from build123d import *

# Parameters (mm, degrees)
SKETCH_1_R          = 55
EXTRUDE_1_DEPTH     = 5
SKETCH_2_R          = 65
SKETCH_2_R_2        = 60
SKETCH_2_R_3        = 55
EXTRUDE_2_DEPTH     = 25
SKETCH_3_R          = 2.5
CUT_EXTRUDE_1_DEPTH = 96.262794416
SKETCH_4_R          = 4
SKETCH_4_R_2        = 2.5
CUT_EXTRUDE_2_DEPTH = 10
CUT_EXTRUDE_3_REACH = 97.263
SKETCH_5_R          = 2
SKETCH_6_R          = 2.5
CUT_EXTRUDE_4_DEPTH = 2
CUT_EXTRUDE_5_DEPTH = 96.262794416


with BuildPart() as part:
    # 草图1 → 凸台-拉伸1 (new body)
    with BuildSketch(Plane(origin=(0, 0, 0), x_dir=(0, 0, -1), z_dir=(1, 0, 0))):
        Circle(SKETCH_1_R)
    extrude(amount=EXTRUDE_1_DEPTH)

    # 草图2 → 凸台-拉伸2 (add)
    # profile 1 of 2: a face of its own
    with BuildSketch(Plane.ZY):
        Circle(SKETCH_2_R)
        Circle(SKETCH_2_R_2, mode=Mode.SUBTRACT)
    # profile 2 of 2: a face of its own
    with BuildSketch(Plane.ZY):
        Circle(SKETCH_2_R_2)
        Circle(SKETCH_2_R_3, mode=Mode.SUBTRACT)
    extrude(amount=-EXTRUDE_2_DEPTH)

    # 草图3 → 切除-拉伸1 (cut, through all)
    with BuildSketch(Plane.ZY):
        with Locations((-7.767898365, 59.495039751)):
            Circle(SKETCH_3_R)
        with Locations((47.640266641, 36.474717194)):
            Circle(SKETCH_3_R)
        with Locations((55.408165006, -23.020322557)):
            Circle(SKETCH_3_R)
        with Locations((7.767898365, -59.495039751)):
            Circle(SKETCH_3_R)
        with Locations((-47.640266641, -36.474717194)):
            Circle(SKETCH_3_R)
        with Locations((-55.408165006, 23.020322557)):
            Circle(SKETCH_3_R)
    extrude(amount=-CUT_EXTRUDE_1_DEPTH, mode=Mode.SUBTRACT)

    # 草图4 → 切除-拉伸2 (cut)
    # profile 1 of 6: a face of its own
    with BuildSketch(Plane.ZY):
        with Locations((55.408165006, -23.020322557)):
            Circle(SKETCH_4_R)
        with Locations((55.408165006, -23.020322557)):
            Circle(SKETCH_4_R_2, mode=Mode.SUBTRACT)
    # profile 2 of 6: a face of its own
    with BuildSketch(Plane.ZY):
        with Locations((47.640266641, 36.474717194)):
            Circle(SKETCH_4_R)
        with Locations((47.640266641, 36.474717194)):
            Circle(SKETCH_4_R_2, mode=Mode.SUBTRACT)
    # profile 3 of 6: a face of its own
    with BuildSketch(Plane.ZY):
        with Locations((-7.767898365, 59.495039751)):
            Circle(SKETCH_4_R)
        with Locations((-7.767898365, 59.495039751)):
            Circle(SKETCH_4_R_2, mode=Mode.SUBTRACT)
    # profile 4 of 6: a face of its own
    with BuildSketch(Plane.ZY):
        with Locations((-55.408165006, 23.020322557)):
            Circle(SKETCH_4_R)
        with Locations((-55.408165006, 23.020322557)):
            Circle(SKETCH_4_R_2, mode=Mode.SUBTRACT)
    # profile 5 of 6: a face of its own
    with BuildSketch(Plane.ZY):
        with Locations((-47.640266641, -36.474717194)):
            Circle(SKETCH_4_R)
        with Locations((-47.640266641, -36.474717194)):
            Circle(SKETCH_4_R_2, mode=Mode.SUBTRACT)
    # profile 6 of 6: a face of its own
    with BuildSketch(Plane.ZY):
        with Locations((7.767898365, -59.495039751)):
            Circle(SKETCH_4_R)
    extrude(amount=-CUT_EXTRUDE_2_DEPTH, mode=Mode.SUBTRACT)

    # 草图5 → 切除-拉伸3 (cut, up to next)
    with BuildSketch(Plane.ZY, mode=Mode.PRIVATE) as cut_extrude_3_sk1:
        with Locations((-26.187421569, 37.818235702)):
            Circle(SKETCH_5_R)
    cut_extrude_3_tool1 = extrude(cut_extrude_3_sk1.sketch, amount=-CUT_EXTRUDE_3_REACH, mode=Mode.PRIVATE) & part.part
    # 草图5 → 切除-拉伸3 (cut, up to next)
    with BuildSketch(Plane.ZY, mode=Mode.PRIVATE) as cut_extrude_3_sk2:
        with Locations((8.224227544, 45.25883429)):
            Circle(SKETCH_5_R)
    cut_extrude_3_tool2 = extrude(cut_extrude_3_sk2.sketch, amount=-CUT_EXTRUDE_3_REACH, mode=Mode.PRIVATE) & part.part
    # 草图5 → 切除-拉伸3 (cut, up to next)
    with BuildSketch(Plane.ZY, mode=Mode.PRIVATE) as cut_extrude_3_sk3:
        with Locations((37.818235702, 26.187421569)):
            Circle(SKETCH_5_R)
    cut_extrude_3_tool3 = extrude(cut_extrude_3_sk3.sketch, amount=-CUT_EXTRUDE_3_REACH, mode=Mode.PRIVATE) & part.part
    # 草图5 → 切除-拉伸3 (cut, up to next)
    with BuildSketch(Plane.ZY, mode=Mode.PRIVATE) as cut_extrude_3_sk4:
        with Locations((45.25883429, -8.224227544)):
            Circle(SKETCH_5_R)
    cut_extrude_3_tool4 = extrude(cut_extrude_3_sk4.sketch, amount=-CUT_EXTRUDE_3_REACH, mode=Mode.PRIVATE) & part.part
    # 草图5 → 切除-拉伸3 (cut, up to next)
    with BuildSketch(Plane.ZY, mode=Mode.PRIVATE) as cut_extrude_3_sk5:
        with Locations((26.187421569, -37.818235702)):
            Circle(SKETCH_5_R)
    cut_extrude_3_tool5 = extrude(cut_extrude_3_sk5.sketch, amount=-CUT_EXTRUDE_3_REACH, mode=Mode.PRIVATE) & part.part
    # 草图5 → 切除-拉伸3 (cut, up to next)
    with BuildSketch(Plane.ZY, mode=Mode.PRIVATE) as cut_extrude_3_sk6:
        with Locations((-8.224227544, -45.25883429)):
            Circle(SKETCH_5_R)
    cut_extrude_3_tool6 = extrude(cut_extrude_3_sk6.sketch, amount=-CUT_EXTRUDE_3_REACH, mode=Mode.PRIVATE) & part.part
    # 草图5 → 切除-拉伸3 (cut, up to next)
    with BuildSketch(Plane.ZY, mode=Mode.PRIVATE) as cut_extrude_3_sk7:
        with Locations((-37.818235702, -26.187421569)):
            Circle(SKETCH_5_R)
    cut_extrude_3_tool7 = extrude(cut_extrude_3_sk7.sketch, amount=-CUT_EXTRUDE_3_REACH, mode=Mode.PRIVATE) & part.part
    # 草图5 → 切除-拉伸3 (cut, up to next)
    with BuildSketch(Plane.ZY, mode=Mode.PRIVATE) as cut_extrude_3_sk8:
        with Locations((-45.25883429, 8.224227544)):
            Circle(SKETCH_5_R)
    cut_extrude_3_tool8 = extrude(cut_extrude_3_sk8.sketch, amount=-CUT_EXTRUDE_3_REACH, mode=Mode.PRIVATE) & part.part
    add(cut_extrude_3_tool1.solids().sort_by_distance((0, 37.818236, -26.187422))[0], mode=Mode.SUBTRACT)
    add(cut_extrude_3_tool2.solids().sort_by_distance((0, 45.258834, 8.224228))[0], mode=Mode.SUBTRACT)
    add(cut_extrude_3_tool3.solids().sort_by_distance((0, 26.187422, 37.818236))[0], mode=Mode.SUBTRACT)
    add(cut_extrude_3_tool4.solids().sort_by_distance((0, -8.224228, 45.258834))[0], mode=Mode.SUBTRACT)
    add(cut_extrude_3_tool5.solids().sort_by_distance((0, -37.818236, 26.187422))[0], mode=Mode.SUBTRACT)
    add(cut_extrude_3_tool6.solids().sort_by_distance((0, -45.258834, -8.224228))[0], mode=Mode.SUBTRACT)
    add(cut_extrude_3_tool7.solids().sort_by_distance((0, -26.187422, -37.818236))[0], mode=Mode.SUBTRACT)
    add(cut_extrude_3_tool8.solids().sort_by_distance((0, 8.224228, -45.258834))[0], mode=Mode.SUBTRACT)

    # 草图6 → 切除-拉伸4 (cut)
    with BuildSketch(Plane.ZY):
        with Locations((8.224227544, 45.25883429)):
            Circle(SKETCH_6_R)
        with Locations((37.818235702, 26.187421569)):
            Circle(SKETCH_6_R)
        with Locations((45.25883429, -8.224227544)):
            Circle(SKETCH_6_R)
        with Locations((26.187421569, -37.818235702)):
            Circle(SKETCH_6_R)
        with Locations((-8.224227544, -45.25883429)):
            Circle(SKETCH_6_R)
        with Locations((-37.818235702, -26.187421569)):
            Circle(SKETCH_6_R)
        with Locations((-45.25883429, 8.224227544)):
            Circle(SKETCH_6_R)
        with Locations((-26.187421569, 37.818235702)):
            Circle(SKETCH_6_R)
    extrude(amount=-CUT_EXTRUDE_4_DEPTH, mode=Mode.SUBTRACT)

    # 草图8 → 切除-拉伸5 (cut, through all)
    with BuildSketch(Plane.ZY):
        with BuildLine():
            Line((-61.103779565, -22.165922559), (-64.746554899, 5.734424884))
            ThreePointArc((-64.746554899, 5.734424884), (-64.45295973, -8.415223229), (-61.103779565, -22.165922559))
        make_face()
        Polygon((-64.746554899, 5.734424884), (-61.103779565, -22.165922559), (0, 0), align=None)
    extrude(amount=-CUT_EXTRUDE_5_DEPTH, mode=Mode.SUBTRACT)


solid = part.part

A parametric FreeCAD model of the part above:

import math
import FreeCAD as App
import Part
import Sketcher

V = App.Vector

doc = App.newDocument("Part")
body = doc.addObject("PartDesign::Body", "Body")

sketch1 = body.newObject("Sketcher::SketchObject", "Sketch")
sketch1.AttachmentSupport = (doc.getObject("YZ_Plane"), [""])
sketch1.MapMode = "FlatFace"
sketch1.addGeometry(Part.Circle(V(0, 0, 0), V(0, 0, 1), 55), False)
sketch1.addConstraint(Sketcher.Constraint("Coincident", 0, 3, -1, 1))
sketch1.addConstraint(Sketcher.Constraint("Diameter", 0, 110.0))
pad1 = body.newObject("PartDesign::Pad", "Pad")
pad1.Profile = sketch1
pad1.Length = 5

sketch2 = body.newObject("Sketcher::SketchObject", "Sketch001")
sketch2.AttachmentSupport = (doc.getObject("YZ_Plane"), [""])
sketch2.MapMode = "FlatFace"
sketch2.addGeometry(Part.Circle(V(0, 0, 0), V(0, 0, 1), 65), False)
sketch2.addGeometry(Part.Circle(V(0, 0, 0), V(0, 0, 1), 55), False)
sketch2.addConstraint(Sketcher.Constraint("Coincident", 0, 3, -1, 1))
sketch2.addConstraint(Sketcher.Constraint("Coincident", 1, 3, -1, 1))
sketch2.addConstraint(Sketcher.Constraint("Diameter", 0, 130.0))
sketch2.addConstraint(Sketcher.Constraint("Diameter", 1, 110.0))
pad2 = body.newObject("PartDesign::Pad", "Pad001")
pad2.Profile = sketch2
pad2.Length = 25

sketch3 = body.newObject("Sketcher::SketchObject", "Sketch002")
sketch3.AttachmentSupport = (doc.getObject("YZ_Plane"), [""])
sketch3.MapMode = "FlatFace"
sketch3.addGeometry(Part.Circle(V(59.5, -7.8, 0), V(0, 0, 1), 2.5), False)
sketch3.addGeometry(Part.Circle(V(36.5, 47.6, 0), V(0, 0, 1), 2.5), False)
sketch3.addGeometry(Part.Circle(V(-23, 55.4, 0), V(0, 0, 1), 2.5), False)
sketch3.addGeometry(Part.Circle(V(-59.5, 7.8, 0), V(0, 0, 1), 2.5), False)
sketch3.addGeometry(Part.Circle(V(-36.5, -47.6, 0), V(0, 0, 1), 2.5), False)
sketch3.addGeometry(Part.Circle(V(23, -55.4, 0), V(0, 0, 1), 2.5), False)
sketch3.addConstraint(Sketcher.Constraint("Equal", 0, 1))
sketch3.addConstraint(Sketcher.Constraint("Equal", 1, 2))
sketch3.addConstraint(Sketcher.Constraint("Equal", 2, 3))
sketch3.addConstraint(Sketcher.Constraint("Equal", 3, 4))
sketch3.addConstraint(Sketcher.Constraint("Equal", 4, 5))
sketch3.addConstraint(Sketcher.Constraint("Symmetric", 0, 3, 3, 3, -1, 1))
sketch3.addConstraint(Sketcher.Constraint("Symmetric", 1, 3, 4, 3, -1, 1))
sketch3.addConstraint(Sketcher.Constraint("Symmetric", 2, 3, 5, 3, -1, 1))
sketch3.addConstraint(Sketcher.Constraint("Diameter", 0, 5.0))
sketch3.addConstraint(Sketcher.Constraint("DistanceY", 0, 3, -1, 1, 7.767898))
sketch3.addConstraint(Sketcher.Constraint("DistanceY", 1, 3, 2, 3, 7.767898))
sketch3.addConstraint(Sketcher.Constraint("DistanceX", -1, 1, 0, 3, 59.49504))
sketch3.addConstraint(Sketcher.Constraint("DistanceX", 2, 3, 1, 3, 59.49504))
sketch3.addConstraint(Sketcher.Constraint("DistanceY", 3, 3, 1, 3, 39.872368))
sketch3.addConstraint(Sketcher.Constraint("DistanceX", -1, 1, 1, 3, 36.474717))
pocket1 = body.newObject("PartDesign::Pocket", "Pocket")
pocket1.Profile = sketch3
pocket1.Type = "ThroughAll"
pocket1.Reversed = True

sketch4 = body.newObject("Sketcher::SketchObject", "Sketch003")
sketch4.AttachmentSupport = (doc.getObject("YZ_Plane"), [""])
sketch4.MapMode = "FlatFace"
sketch4.addGeometry(Part.Circle(V(-23, 55.4, 0), V(0, 0, 1), 4), False)
sketch4.addGeometry(Part.Circle(V(-23, 55.4, 0), V(0, 0, 1), 2.5), False)
sketch4.addGeometry(Part.Circle(V(36.5, 47.6, 0), V(0, 0, 1), 4), False)
sketch4.addGeometry(Part.Circle(V(36.5, 47.6, 0), V(0, 0, 1), 2.5), False)
sketch4.addGeometry(Part.Circle(V(59.5, -7.8, 0), V(0, 0, 1), 4), False)
sketch4.addGeometry(Part.Circle(V(59.5, -7.8, 0), V(0, 0, 1), 2.5), False)
sketch4.addGeometry(Part.Circle(V(23, -55.4, 0), V(0, 0, 1), 4), False)
sketch4.addGeometry(Part.Circle(V(23, -55.4, 0), V(0, 0, 1), 2.5), False)
sketch4.addGeometry(Part.Circle(V(-36.5, -47.6, 0), V(0, 0, 1), 4), False)
sketch4.addGeometry(Part.Circle(V(-36.5, -47.6, 0), V(0, 0, 1), 2.5), False)
sketch4.addGeometry(Part.Circle(V(-59.5, 7.8, 0), V(0, 0, 1), 4), False)
sketch4.addConstraint(Sketcher.Constraint("Coincident", 1, 3, 0, 3))
sketch4.addConstraint(Sketcher.Constraint("Coincident", 3, 3, 2, 3))
sketch4.addConstraint(Sketcher.Constraint("Coincident", 5, 3, 4, 3))
sketch4.addConstraint(Sketcher.Constraint("Coincident", 7, 3, 6, 3))
sketch4.addConstraint(Sketcher.Constraint("Coincident", 9, 3, 8, 3))
sketch4.addConstraint(Sketcher.Constraint("Equal", 0, 2))
sketch4.addConstraint(Sketcher.Constraint("Equal", 1, 3))
sketch4.addConstraint(Sketcher.Constraint("Equal", 2, 4))
sketch4.addConstraint(Sketcher.Constraint("Equal", 3, 5))
sketch4.addConstraint(Sketcher.Constraint("Equal", 4, 6))
sketch4.addConstraint(Sketcher.Constraint("Equal", 5, 7))
sketch4.addConstraint(Sketcher.Constraint("Equal", 6, 8))
sketch4.addConstraint(Sketcher.Constraint("Equal", 7, 9))
sketch4.addConstraint(Sketcher.Constraint("Equal", 8, 10))
sketch4.addConstraint(Sketcher.Constraint("Symmetric", 0, 3, 6, 3, -1, 1))
sketch4.addConstraint(Sketcher.Constraint("Symmetric", 2, 3, 8, 3, -1, 1))
sketch4.addConstraint(Sketcher.Constraint("Symmetric", 4, 3, 10, 3, -1, 1))
sketch4.addConstraint(Sketcher.Constraint("Diameter", 0, 8.0))
sketch4.addConstraint(Sketcher.Constraint("Diameter", 1, 5.0))
sketch4.addConstraint(Sketcher.Constraint("DistanceY", 4, 3, -1, 1, 7.767898))
sketch4.addConstraint(Sketcher.Constraint("DistanceY", 2, 3, 0, 3, 7.767898))
sketch4.addConstraint(Sketcher.Constraint("DistanceX", -1, 1, 4, 3, 59.49504))
sketch4.addConstraint(Sketcher.Constraint("DistanceX", 0, 3, 2, 3, 59.49504))
sketch4.addConstraint(Sketcher.Constraint("DistanceY", 6, 3, 2, 3, 103.048432))
sketch4.addConstraint(Sketcher.Constraint("DistanceX", 0, 3, -1, 1, 23.020323))
pocket2 = body.newObject("PartDesign::Pocket", "Pocket001")
pocket2.Profile = sketch4
pocket2.Length = 10
pocket2.Reversed = True

sketch5 = body.newObject("Sketcher::SketchObject", "Sketch004")
sketch5.AttachmentSupport = (doc.getObject("YZ_Plane"), [""])
sketch5.MapMode = "FlatFace"
sketch5.addGeometry(Part.Circle(V(37.8, -26.2, 0), V(0, 0, 1), 2), False)
sketch5.addConstraint(Sketcher.Constraint("Diameter", 0, 4.0))
sketch5.addConstraint(Sketcher.Constraint("DistanceY", 0, 3, -1, 1, 26.187422))
sketch5.addConstraint(Sketcher.Constraint("DistanceX", -1, 1, 0, 3, 37.818236))
pocket3 = body.newObject("PartDesign::Pocket", "Pocket002")
pocket3.Profile = sketch5
pocket3.Type = "UpToFirst"
pocket3.Reversed = True

sketch6 = body.newObject("Sketcher::SketchObject", "Sketch005")
sketch6.AttachmentSupport = (doc.getObject("YZ_Plane"), [""])
sketch6.MapMode = "FlatFace"
sketch6.addGeometry(Part.Circle(V(45.3, 8.2, 0), V(0, 0, 1), 2), False)
sketch6.addConstraint(Sketcher.Constraint("Diameter", 0, 4.0))
sketch6.addConstraint(Sketcher.Constraint("DistanceX", -1, 1, 0, 3, 45.258834))
sketch6.addConstraint(Sketcher.Constraint("DistanceY", -1, 1, 0, 3, 8.224228))
pocket4 = body.newObject("PartDesign::Pocket", "Pocket003")
pocket4.Profile = sketch6
pocket4.Type = "UpToFirst"
pocket4.Reversed = True

sketch7 = body.newObject("Sketcher::SketchObject", "Sketch006")
sketch7.AttachmentSupport = (doc.getObject("YZ_Plane"), [""])
sketch7.MapMode = "FlatFace"
sketch7.addGeometry(Part.Circle(V(26.2, 37.8, 0), V(0, 0, 1), 2), False)
sketch7.addConstraint(Sketcher.Constraint("Diameter", 0, 4.0))
sketch7.addConstraint(Sketcher.Constraint("DistanceX", -1, 1, 0, 3, 26.187422))
sketch7.addConstraint(Sketcher.Constraint("DistanceY", -1, 1, 0, 3, 37.818236))
pocket5 = body.newObject("PartDesign::Pocket", "Pocket004")
pocket5.Profile = sketch7
pocket5.Type = "UpToFirst"
pocket5.Reversed = True

sketch8 = body.newObject("Sketcher::SketchObject", "Sketch007")
sketch8.AttachmentSupport = (doc.getObject("YZ_Plane"), [""])
sketch8.MapMode = "FlatFace"
sketch8.addGeometry(Part.Circle(V(-8.2, 45.3, 0), V(0, 0, 1), 2), False)
sketch8.addConstraint(Sketcher.Constraint("Diameter", 0, 4.0))
sketch8.addConstraint(Sketcher.Constraint("DistanceX", 0, 3, -1, 1, 8.224228))
sketch8.addConstraint(Sketcher.Constraint("DistanceY", -1, 1, 0, 3, 45.258834))
pocket6 = body.newObject("PartDesign::Pocket", "Pocket005")
pocket6.Profile = sketch8
pocket6.Type = "UpToFirst"
pocket6.Reversed = True

sketch9 = body.newObject("Sketcher::SketchObject", "Sketch008")
sketch9.AttachmentSupport = (doc.getObject("YZ_Plane"), [""])
sketch9.MapMode = "FlatFace"
sketch9.addGeometry(Part.Circle(V(-37.8, 26.2, 0), V(0, 0, 1), 2), False)
sketch9.addConstraint(Sketcher.Constraint("Diameter", 0, 4.0))
sketch9.addConstraint(Sketcher.Constraint("DistanceY", -1, 1, 0, 3, 26.187422))
sketch9.addConstraint(Sketcher.Constraint("DistanceX", 0, 3, -1, 1, 37.818236))
pocket7 = body.newObject("PartDesign::Pocket", "Pocket006")
pocket7.Profile = sketch9
pocket7.Type = "UpToFirst"
pocket7.Reversed = True

sketch10 = body.newObject("Sketcher::SketchObject", "Sketch009")
sketch10.AttachmentSupport = (doc.getObject("YZ_Plane"), [""])
sketch10.MapMode = "FlatFace"
sketch10.addGeometry(Part.Circle(V(-45.3, -8.2, 0), V(0, 0, 1), 2), False)
sketch10.addConstraint(Sketcher.Constraint("Diameter", 0, 4.0))
sketch10.addConstraint(Sketcher.Constraint("DistanceX", 0, 3, -1, 1, 45.258834))
sketch10.addConstraint(Sketcher.Constraint("DistanceY", 0, 3, -1, 1, 8.224228))
pocket8 = body.newObject("PartDesign::Pocket", "Pocket007")
pocket8.Profile = sketch10
pocket8.Type = "UpToFirst"
pocket8.Reversed = True

sketch11 = body.newObject("Sketcher::SketchObject", "Sketch010")
sketch11.AttachmentSupport = (doc.getObject("YZ_Plane"), [""])
sketch11.MapMode = "FlatFace"
sketch11.addGeometry(Part.Circle(V(-26.2, -37.8, 0), V(0, 0, 1), 2), False)
sketch11.addConstraint(Sketcher.Constraint("Diameter", 0, 4.0))
sketch11.addConstraint(Sketcher.Constraint("DistanceX", 0, 3, -1, 1, 26.187422))
sketch11.addConstraint(Sketcher.Constraint("DistanceY", 0, 3, -1, 1, 37.818236))
pocket9 = body.newObject("PartDesign::Pocket", "Pocket008")
pocket9.Profile = sketch11
pocket9.Type = "UpToFirst"
pocket9.Reversed = True

sketch12 = body.newObject("Sketcher::SketchObject", "Sketch011")
sketch12.AttachmentSupport = (doc.getObject("YZ_Plane"), [""])
sketch12.MapMode = "FlatFace"
sketch12.addGeometry(Part.Circle(V(8.2, -45.3, 0), V(0, 0, 1), 2), False)
sketch12.addConstraint(Sketcher.Constraint("Diameter", 0, 4.0))
sketch12.addConstraint(Sketcher.Constraint("DistanceX", -1, 1, 0, 3, 8.224228))
sketch12.addConstraint(Sketcher.Constraint("DistanceY", 0, 3, -1, 1, 45.258834))
pocket10 = body.newObject("PartDesign::Pocket", "Pocket009")
pocket10.Profile = sketch12
pocket10.Type = "UpToFirst"
pocket10.Reversed = True

sketch13 = body.newObject("Sketcher::SketchObject", "Sketch012")
sketch13.AttachmentSupport = (doc.getObject("YZ_Plane"), [""])
sketch13.MapMode = "FlatFace"
sketch13.addGeometry(Part.Circle(V(45.3, 8.2, 0), V(0, 0, 1), 2.5), False)
sketch13.addGeometry(Part.Circle(V(26.2, 37.8, 0), V(0, 0, 1), 2.5), False)
sketch13.addGeometry(Part.Circle(V(-8.2, 45.3, 0), V(0, 0, 1), 2.5), False)
sketch13.addGeometry(Part.Circle(V(-37.8, 26.2, 0), V(0, 0, 1), 2.5), False)
sketch13.addGeometry(Part.Circle(V(-45.3, -8.2, 0), V(0, 0, 1), 2.5), False)
sketch13.addGeometry(Part.Circle(V(-26.2, -37.8, 0), V(0, 0, 1), 2.5), False)
sketch13.addGeometry(Part.Circle(V(8.2, -45.3, 0), V(0, 0, 1), 2.5), False)
sketch13.addGeometry(Part.Circle(V(37.8, -26.2, 0), V(0, 0, 1), 2.5), False)
sketch13.addConstraint(Sketcher.Constraint("Equal", 0, 1))
sketch13.addConstraint(Sketcher.Constraint("Equal", 1, 2))
sketch13.addConstraint(Sketcher.Constraint("Equal", 2, 3))
sketch13.addConstraint(Sketcher.Constraint("Equal", 3, 4))
sketch13.addConstraint(Sketcher.Constraint("Equal", 4, 5))
sketch13.addConstraint(Sketcher.Constraint("Equal", 5, 6))
sketch13.addConstraint(Sketcher.Constraint("Equal", 6, 7))
sketch13.addConstraint(Sketcher.Constraint("Symmetric", 0, 3, 4, 3, -1, 1))
sketch13.addConstraint(Sketcher.Constraint("Symmetric", 1, 3, 5, 3, -1, 1))
sketch13.addConstraint(Sketcher.Constraint("Symmetric", 2, 3, 6, 3, -1, 1))
sketch13.addConstraint(Sketcher.Constraint("Symmetric", 3, 3, 7, 3, -1, 1))
sketch13.addConstraint(Sketcher.Constraint("Diameter", 0, 5.0))
sketch13.addConstraint(Sketcher.Constraint("DistanceY", 1, 3, 2, 3, 7.440599))
sketch13.addConstraint(Sketcher.Constraint("DistanceX", 4, 3, 3, 3, 7.440599))
sketch13.addConstraint(Sketcher.Constraint("DistanceX", -1, 1, 1, 3, 26.187422))
sketch13.addConstraint(Sketcher.Constraint("DistanceY", -1, 1, 3, 3, 26.187422))
sketch13.addConstraint(Sketcher.Constraint("DistanceY", 0, 3, 1, 3, 29.594008))
sketch13.addConstraint(Sketcher.Constraint("DistanceX", 2, 3, 1, 3, 34.411649))
sketch13.addConstraint(Sketcher.Constraint("DistanceX", 2, 3, 0, 3, 53.483062))
sketch13.addConstraint(Sketcher.Constraint("DistanceY", 4, 3, 3, 3, 34.411649))
pocket11 = body.newObject("PartDesign::Pocket", "Pocket010")
pocket11.Profile = sketch13
pocket11.Length = 2
pocket11.Reversed = True

sketch14 = body.newObject("Sketcher::SketchObject", "Sketch013")
sketch14.AttachmentSupport = (doc.getObject("YZ_Plane"), [""])
sketch14.MapMode = "FlatFace"
sketch14.addGeometry(Part.ArcOfCircle(Part.Circle(V(0, 0, 0), V(0, 0, 1), 65), math.radians(-110), math.radians(-85)), False)
sketch14.addGeometry(Part.LineSegment(V(-22, -61, 0), V(0, 0, 0)), False)
sketch14.addGeometry(Part.LineSegment(V(0, 0, 0), V(6, -65, 0)), False)
sketch14.addConstraint(Sketcher.Constraint("Coincident", 0, 1, 1, 1))
sketch14.addConstraint(Sketcher.Constraint("Coincident", 1, 2, 2, 1))
sketch14.addConstraint(Sketcher.Constraint("Coincident", 2, 2, 0, 2))
sketch14.addConstraint(Sketcher.Constraint("Coincident", 0, 3, -1, 1))
sketch14.addConstraint(Sketcher.Constraint("Coincident", 1, 2, -1, 1))
sketch14.addConstraint(Sketcher.Constraint("Radius", 0, 65.0))
sketch14.addConstraint(Sketcher.Constraint("DistanceY", 0, 1, -1, 1, 61.10378))
sketch14.addConstraint(Sketcher.Constraint("DistanceX", -1, 1, 2, 2, 5.734425))
pocket12 = body.newObject("PartDesign::Pocket", "Pocket011")
pocket12.Profile = sketch14
pocket12.Type = "ThroughAll"
pocket12.Reversed = True

doc.recompute()
